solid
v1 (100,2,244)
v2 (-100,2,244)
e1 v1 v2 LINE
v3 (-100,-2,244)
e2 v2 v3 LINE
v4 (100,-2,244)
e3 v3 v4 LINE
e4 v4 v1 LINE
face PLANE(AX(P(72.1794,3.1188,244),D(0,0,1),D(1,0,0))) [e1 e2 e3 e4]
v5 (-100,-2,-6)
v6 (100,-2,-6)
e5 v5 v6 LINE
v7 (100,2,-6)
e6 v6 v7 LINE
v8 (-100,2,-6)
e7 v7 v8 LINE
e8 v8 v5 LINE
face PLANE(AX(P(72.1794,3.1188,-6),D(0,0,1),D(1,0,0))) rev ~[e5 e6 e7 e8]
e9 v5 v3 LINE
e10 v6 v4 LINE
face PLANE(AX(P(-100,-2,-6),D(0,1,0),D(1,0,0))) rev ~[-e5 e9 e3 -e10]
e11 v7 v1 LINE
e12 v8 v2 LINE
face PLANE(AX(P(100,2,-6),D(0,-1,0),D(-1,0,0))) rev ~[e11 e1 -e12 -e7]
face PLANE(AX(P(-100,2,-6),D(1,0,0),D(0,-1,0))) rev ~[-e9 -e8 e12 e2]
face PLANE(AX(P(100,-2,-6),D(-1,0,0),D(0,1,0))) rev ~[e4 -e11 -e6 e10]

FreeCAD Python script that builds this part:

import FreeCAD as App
import Part
import Sketcher
Q = App.Units.Quantity


def add_polygon(sketch, points):
    """Adds a closed chain of lines whose ends are joined by coincident constraints."""
    first, n = sketch.GeometryCount, len(points)
    for a, b in zip(points, points[1:] + points[:1]):
        sketch.addGeometry(Part.LineSegment(App.Vector(*a, 0), App.Vector(*b, 0)), False)
    for i in range(n):
        sketch.addConstraint(Sketcher.Constraint("Coincident", first + i, 2, first + (i + 1) % n, 1))

doc = App.newDocument("Part")
body = doc.addObject("PartDesign::Body", "Body")

sketch1 = body.newObject("Sketcher::SketchObject", "Sketch")
sketch1.AttachmentSupport = (doc.getObject("XY_Plane"), [""])
sketch1.MapMode = "FlatFace"
sketch1.AttachmentOffset = App.Placement(App.Vector(0, 0, -6), App.Rotation())
add_polygon(sketch1, [(100, -2), (100, 2), (-100, 2), (-100, -2)])
sketch1.addConstraint([
    Sketcher.Constraint("Vertical", 0),
    Sketcher.Constraint("Horizontal", 1),
    Sketcher.Constraint("Vertical", 2),
    Sketcher.Constraint("Horizontal", 3),
    Sketcher.Constraint("Symmetric", 0, 2, 2, 2, -1, 1),
    Sketcher.Constraint("DistanceX", 1, 2, 1, 1, Q("200 mm")),
    Sketcher.Constraint("DistanceY", 0, 1, 0, 2, Q("4 mm")),
])
pad1 = body.newObject("PartDesign::Pad", "Pad")
pad1.Profile = sketch1
pad1.Length = 250

doc.recompute()
